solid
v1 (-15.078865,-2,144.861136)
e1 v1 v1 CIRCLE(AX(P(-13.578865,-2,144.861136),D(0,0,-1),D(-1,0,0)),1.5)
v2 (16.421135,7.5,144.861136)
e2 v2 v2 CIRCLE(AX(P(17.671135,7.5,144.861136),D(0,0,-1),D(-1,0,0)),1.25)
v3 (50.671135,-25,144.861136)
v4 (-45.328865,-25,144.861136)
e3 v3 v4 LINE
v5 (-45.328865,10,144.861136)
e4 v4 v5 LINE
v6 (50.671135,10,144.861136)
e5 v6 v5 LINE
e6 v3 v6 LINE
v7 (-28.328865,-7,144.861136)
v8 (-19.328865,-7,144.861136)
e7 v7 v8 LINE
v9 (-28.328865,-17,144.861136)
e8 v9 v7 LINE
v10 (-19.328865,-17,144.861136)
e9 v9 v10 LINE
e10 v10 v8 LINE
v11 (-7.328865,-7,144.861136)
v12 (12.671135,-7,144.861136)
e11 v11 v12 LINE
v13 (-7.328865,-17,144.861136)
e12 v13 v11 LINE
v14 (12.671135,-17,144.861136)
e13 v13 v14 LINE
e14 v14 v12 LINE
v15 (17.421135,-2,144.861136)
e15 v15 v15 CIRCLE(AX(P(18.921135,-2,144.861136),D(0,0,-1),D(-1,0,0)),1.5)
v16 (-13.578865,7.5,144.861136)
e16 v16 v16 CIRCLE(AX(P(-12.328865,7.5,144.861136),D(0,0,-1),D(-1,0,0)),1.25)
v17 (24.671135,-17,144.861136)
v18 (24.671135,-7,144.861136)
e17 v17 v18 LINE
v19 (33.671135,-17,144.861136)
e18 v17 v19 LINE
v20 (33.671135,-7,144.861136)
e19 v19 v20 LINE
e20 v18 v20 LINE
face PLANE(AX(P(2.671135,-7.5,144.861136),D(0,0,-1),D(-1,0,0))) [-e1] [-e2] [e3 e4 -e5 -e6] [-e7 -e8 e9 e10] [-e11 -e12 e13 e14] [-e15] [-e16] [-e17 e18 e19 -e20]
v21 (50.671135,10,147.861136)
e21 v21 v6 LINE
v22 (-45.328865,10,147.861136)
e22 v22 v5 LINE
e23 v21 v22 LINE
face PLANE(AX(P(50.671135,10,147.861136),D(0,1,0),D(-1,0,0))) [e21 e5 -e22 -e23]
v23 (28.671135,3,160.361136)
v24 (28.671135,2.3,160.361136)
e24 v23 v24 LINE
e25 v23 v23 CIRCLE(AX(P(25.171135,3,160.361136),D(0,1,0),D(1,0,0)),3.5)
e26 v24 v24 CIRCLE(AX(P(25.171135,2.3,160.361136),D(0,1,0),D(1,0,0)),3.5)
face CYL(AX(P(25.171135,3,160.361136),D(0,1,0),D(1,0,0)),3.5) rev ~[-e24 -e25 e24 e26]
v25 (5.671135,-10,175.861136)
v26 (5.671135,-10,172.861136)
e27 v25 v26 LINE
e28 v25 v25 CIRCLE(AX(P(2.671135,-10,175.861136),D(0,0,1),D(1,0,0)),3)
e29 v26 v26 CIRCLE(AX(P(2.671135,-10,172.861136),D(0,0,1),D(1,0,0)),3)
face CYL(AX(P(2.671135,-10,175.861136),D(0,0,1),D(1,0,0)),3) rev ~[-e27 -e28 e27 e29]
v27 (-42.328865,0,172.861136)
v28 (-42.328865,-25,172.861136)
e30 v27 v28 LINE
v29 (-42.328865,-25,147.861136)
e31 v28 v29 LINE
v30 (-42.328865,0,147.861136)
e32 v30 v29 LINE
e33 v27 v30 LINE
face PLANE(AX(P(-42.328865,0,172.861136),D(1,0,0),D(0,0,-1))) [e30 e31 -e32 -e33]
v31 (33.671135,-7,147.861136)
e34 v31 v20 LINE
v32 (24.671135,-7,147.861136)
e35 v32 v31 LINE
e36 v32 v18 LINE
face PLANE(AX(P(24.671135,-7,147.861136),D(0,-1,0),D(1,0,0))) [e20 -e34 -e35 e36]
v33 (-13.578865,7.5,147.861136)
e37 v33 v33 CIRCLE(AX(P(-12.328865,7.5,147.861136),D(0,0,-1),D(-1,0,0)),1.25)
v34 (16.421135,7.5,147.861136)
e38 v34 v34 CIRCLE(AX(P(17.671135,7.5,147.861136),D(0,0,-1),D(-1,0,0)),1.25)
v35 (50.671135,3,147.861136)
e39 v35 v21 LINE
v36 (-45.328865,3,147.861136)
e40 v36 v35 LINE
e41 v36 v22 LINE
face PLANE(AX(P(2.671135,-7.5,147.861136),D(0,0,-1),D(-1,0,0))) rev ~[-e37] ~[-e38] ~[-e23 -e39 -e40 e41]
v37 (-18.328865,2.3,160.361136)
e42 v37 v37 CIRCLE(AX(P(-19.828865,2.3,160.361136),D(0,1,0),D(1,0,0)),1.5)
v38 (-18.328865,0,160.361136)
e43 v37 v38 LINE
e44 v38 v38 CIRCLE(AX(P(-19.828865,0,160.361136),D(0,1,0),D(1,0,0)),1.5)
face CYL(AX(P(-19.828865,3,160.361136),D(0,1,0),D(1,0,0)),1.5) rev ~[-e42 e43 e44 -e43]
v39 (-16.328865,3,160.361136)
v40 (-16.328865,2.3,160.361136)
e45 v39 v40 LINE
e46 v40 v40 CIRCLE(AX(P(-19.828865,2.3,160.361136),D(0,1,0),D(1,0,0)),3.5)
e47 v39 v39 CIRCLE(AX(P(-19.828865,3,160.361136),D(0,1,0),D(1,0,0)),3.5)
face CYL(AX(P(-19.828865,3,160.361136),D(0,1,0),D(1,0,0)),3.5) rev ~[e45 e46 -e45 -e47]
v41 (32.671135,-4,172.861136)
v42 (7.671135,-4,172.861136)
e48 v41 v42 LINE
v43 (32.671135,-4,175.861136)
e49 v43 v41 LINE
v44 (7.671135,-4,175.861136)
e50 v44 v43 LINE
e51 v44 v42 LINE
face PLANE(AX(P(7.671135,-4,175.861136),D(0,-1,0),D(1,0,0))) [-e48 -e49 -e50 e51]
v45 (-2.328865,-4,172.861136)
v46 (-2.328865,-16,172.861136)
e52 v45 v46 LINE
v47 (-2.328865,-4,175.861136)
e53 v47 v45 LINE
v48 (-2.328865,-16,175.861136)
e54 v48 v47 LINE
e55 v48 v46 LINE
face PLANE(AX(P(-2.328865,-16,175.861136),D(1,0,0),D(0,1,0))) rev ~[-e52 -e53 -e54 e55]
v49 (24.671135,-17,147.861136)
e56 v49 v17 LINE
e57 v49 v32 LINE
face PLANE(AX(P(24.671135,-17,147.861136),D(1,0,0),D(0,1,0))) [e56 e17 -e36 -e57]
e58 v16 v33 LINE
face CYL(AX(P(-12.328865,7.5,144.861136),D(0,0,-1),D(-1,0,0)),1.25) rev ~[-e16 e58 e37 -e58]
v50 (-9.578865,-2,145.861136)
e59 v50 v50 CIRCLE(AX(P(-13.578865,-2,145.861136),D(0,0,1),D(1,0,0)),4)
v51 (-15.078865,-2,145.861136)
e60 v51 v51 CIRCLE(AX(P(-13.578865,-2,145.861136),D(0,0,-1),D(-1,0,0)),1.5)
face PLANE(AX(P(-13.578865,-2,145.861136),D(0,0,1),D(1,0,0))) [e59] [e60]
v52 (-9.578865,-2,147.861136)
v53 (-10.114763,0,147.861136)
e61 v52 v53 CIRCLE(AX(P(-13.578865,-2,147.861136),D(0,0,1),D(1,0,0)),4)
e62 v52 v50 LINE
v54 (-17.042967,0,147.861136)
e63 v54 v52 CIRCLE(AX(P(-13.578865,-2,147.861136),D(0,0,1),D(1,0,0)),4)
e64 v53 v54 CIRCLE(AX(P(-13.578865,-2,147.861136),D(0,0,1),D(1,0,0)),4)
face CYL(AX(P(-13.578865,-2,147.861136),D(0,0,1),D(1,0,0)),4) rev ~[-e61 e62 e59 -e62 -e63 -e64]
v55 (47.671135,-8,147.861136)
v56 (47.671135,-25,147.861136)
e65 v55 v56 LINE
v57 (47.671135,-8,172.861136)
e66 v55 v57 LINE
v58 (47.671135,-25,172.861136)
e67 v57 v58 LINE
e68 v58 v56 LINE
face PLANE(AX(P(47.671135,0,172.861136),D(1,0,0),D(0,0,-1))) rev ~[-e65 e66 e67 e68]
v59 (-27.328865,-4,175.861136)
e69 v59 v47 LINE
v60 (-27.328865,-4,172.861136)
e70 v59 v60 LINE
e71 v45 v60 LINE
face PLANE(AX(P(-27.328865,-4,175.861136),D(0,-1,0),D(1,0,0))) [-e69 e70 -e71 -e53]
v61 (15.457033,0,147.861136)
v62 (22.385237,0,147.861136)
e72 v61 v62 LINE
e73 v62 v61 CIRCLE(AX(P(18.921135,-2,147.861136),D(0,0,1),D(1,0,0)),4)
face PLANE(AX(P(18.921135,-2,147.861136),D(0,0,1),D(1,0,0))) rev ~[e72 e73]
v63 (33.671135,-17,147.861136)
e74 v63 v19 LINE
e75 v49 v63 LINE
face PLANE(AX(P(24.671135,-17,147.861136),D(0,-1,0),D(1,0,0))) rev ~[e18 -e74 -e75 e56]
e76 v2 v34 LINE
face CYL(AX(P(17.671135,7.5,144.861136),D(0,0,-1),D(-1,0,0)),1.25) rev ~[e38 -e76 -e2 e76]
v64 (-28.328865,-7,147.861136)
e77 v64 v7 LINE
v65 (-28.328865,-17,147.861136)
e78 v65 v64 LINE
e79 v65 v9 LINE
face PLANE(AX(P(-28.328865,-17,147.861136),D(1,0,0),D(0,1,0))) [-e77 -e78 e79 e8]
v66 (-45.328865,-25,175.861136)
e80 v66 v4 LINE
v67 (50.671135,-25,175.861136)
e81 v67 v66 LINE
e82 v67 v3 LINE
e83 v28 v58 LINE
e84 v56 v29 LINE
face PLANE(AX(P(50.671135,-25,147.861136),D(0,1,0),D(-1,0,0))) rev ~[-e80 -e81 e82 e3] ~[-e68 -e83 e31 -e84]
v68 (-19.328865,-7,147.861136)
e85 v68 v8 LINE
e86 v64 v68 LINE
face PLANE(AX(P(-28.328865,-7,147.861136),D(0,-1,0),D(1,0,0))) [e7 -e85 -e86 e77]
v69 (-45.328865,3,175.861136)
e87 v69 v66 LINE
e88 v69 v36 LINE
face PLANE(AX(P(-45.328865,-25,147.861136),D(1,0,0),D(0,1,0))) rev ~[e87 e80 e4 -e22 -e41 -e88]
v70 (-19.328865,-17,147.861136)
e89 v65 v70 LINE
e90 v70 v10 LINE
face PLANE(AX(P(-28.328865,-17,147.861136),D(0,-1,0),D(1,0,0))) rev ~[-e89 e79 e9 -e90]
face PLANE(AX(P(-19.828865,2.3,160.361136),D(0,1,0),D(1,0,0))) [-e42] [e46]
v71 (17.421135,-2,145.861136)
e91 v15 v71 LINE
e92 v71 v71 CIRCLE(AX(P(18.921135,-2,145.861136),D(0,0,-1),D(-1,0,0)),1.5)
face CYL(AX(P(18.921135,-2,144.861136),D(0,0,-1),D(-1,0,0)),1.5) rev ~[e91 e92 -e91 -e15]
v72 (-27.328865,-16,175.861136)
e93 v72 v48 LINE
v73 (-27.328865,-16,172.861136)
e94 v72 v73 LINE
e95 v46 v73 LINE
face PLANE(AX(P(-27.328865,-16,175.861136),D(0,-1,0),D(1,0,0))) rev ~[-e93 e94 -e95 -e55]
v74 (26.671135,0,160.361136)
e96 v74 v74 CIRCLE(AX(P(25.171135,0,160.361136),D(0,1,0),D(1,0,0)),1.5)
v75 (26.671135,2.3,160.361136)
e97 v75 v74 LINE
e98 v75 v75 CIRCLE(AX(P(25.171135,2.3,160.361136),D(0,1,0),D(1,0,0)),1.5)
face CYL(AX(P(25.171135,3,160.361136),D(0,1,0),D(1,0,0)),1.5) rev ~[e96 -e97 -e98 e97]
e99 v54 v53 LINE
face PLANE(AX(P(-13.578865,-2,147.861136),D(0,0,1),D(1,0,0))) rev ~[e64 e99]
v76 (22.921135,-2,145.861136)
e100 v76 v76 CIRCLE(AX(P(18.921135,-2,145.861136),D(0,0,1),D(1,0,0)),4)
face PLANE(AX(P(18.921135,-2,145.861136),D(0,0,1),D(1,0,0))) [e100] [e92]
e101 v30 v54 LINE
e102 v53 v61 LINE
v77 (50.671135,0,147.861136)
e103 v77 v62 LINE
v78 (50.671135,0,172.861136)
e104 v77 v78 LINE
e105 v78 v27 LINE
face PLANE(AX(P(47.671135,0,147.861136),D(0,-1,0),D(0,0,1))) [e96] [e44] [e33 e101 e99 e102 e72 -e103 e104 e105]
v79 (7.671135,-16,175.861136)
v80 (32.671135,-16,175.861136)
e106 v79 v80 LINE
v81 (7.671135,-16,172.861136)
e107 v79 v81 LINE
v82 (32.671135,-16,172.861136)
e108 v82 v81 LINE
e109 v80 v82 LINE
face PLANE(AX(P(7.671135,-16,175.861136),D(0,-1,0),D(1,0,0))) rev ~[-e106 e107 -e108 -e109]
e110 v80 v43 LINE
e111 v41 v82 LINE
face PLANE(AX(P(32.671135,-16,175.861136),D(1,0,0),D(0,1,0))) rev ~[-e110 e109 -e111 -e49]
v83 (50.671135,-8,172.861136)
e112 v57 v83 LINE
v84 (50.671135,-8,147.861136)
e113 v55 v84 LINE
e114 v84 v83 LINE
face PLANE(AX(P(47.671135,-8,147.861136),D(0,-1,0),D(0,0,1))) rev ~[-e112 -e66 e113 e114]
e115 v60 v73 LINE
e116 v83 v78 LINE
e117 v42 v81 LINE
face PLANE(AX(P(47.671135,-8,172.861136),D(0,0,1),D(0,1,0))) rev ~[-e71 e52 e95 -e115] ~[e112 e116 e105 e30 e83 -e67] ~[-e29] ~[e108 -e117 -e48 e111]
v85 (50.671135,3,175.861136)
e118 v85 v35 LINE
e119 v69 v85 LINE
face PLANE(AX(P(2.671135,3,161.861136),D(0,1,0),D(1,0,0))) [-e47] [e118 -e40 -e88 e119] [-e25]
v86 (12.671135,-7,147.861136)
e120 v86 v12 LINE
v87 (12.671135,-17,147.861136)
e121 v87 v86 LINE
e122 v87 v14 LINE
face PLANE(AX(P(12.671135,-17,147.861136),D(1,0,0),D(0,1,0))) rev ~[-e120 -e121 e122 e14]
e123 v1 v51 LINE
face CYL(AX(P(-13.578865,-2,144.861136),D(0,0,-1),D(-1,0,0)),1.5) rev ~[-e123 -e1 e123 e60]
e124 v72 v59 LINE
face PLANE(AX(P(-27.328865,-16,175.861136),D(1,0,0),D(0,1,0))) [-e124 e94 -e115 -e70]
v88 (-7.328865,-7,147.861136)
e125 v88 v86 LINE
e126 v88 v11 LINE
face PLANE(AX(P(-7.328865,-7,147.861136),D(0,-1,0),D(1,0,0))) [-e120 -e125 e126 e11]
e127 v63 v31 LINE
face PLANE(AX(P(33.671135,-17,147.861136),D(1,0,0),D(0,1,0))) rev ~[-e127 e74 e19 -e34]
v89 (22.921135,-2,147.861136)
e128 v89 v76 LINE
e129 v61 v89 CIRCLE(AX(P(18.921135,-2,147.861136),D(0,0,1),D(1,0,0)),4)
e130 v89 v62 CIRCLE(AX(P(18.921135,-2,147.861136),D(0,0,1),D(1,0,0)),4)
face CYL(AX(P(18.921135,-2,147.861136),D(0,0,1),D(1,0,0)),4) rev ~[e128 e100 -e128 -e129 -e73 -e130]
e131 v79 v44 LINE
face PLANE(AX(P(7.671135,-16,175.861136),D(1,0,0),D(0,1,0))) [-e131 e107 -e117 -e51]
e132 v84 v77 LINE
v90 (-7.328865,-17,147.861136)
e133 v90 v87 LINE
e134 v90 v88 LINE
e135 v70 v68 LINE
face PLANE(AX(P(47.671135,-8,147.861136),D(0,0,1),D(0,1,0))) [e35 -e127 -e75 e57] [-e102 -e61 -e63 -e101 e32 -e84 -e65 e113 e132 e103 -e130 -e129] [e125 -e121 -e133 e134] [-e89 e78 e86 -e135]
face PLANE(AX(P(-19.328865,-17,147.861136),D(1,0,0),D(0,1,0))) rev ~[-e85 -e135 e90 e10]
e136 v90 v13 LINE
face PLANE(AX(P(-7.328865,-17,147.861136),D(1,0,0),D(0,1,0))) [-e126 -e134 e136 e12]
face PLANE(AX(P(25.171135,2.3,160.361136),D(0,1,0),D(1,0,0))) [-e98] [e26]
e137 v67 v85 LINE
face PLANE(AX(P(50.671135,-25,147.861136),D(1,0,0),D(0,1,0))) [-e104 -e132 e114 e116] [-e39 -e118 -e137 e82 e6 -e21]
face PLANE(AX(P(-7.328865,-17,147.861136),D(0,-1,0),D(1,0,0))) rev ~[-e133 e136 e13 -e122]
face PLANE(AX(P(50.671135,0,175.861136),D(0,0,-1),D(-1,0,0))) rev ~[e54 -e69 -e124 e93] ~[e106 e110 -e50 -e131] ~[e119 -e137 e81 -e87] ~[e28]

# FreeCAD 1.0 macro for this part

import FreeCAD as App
import Part
import Sketcher
from FreeCAD import Vector
Q = App.Units.Quantity

doc = App.newDocument("Part")
params = doc.addObject("Spreadsheet::Sheet", "Params")
for row, (alias, value) in enumerate([
    ("sketch1_width", "96 mm"),
    ("sketch1_height", "28 mm"),
    ("pad1_length", "3 mm"),
    ("sketch2_width", "96 mm"),
    ("sketch2_width2", "3 mm"),
    ("sketch2_height", "28 mm"),
    ("sketch2_height2", "25 mm"),
    ("pad2_length", "25 mm"),
    ("sketch3_width", "96 mm"),
    ("sketch3_height", "35 mm"),
    ("pad3_length", "3 mm"),
    ("sketch4_diameter", "3 mm"),
    ("sketch5_diameter", "3 mm"),
    ("sketch6_diameter", "7 mm"),
    ("pocket3_length", "0.7 mm"),
    ("sketch7_diameter", "3 mm"),
    ("sketch8_diameter", "3 mm"),
    ("sketch9_diameter", "2.5 mm"),
    ("sketch10_diameter", "2.5 mm"),
    ("sketch11_diameter", "8 mm"),
    ("pocket8_length", "2 mm"),
    ("sketch12_diameter", "6 mm"),
    ("sketch13_width", "25 mm"),
    ("sketch13_height", "12 mm"),
    ("sketch14_width", "25 mm"),
    ("sketch14_height", "12 mm"),
    ("sketch15_width", "20 mm"),
    ("sketch15_height", "10 mm"),
    ("sketch16_width", "9 mm"),
    ("sketch16_height", "10 mm"),
    ("sketch17_width", "9 mm"),
    ("sketch17_height", "10 mm"),
    ("sketch18_width", "8 mm"),
    ("sketch18_height", "25 mm"),
], start=1):
    params.set(f"A{row}", alias)
    params.set(f"B{row}", "=" + value)
    params.setAlias(f"B{row}", alias)

body = doc.addObject("PartDesign::Body", "Body")

# Sketch on XZ plane
sketch1 = doc.addObject("Sketcher::SketchObject", "Sketch")
body.addObject(sketch1)
sketch1.AttachmentSupport = (doc.XZ_Plane, [""])
sketch1.MapMode = "FlatFace"
sketch1.addGeometry([
    Part.LineSegment(Vector(-45.328865, 147.861136, 0), Vector(-45.328865, 175.861136, 0)),
    Part.LineSegment(Vector(-45.328865, 175.861136, 0), Vector(50.671135, 175.861136, 0)),
    Part.LineSegment(Vector(50.671135, 175.861136, 0), Vector(50.671135, 147.861136, 0)),
    Part.LineSegment(Vector(50.671135, 147.861136, 0), Vector(-45.328865, 147.861136, 0)),
], False)
sketch1.addConstraint([
    Sketcher.Constraint("Coincident", 0, 2, 1, 1),
    Sketcher.Constraint("Coincident", 1, 2, 2, 1),
    Sketcher.Constraint("Coincident", 2, 2, 3, 1),
    Sketcher.Constraint("Coincident", 3, 2, 0, 1),
    Sketcher.Constraint("Vertical", 0),
    Sketcher.Constraint("Horizontal", 1),
    Sketcher.Constraint("Vertical", 2),
    Sketcher.Constraint("Horizontal", 3),
    Sketcher.Constraint("DistanceX", 1, 1, 1, 2, Q("96 mm")),
    Sketcher.Constraint("DistanceY", 0, 1, 0, 2, Q("28 mm")),
    Sketcher.Constraint("DistanceX", 0, 2, -1, 1, Q("45.328865 mm")),
    Sketcher.Constraint("DistanceY", -1, 1, 0, 2, Q("175.861136 mm")),
])
sketch1.setExpression("Constraints[8]", "Params.sketch1_width")
sketch1.setExpression("Constraints[9]", "Params.sketch1_height")
pad1 = doc.addObject("PartDesign::Pad", "Pad")
body.addObject(pad1)
pad1.Profile = sketch1
pad1.setExpression("Length", "Params.pad1_length")
pad1.Reversed = True

# Sketch on XZ plane
sketch2 = doc.addObject("Sketcher::SketchObject", "Sketch001")
body.addObject(sketch2)
sketch2.AttachmentSupport = (doc.XZ_Plane, [""])
sketch2.MapMode = "FlatFace"
sketch2.addGeometry([
    Part.LineSegment(Vector(50.671135, 175.861136, 0), Vector(-45.328865, 175.861136, 0)),  # 0
    Part.LineSegment(Vector(-45.328865, 175.861136, 0), Vector(-45.328865, 147.861136, 0)),  # 1
    Part.LineSegment(Vector(-45.328865, 147.861136, 0), Vector(-42.328865, 147.861136, 0)),  # 2
    Part.LineSegment(Vector(-42.328865, 147.861136, 0), Vector(-42.328865, 172.861136, 0)),  # 3
    Part.LineSegment(Vector(-42.328865, 172.861136, 0), Vector(47.671135, 172.861136, 0)),  # 4
    Part.LineSegment(Vector(47.671135, 172.861136, 0), Vector(47.671135, 147.861136, 0)),  # 5
    Part.LineSegment(Vector(47.671135, 147.861136, 0), Vector(50.671135, 147.861136, 0)),  # 6
    Part.LineSegment(Vector(50.671135, 147.861136, 0), Vector(50.671135, 175.861136, 0)),  # 7
], False)
sketch2.addConstraint([
    Sketcher.Constraint("Coincident", 0, 2, 1, 1),
    Sketcher.Constraint("Coincident", 1, 2, 2, 1),
    Sketcher.Constraint("Coincident", 2, 2, 3, 1),
    Sketcher.Constraint("Coincident", 3, 2, 4, 1),
    Sketcher.Constraint("Coincident", 4, 2, 5, 1),
    Sketcher.Constraint("Coincident", 5, 2, 6, 1),
    Sketcher.Constraint("Coincident", 6, 2, 7, 1),
    Sketcher.Constraint("Coincident", 7, 2, 0, 1),
    Sketcher.Constraint("Horizontal", 0),
    Sketcher.Constraint("Vertical", 1),
    Sketcher.Constraint("Horizontal", 2),
    Sketcher.Constraint("Vertical", 3),
    Sketcher.Constraint("Horizontal", 4),
    Sketcher.Constraint("Vertical", 5),
    Sketcher.Constraint("Horizontal", 6),
    Sketcher.Constraint("Vertical", 7),
    Sketcher.Constraint("Horizontal", 2, 2, 5, 2),
    Sketcher.Constraint("Equal", 2, 6),
    Sketcher.Constraint("DistanceX", 0, 2, 0, 1, Q("96 mm")),
    Sketcher.Constraint("DistanceX", 2, 1, 2, 2, Q("3 mm")),
    Sketcher.Constraint("DistanceY", 1, 2, 1, 1, Q("28 mm")),
    Sketcher.Constraint("DistanceY", 3, 1, 3, 2, Q("25 mm")),
    Sketcher.Constraint("DistanceX", 0, 2, -1, 1, Q("45.328865 mm")),
    Sketcher.Constraint("DistanceY", -1, 1, 0, 2, Q("175.861136 mm")),
])
sketch2.setExpression("Constraints[18]", "Params.sketch2_width")
sketch2.setExpression("Constraints[19]", "Params.sketch2_width2")
sketch2.setExpression("Constraints[20]", "Params.sketch2_height")
sketch2.setExpression("Constraints[21]", "Params.sketch2_height2")
pad2 = doc.addObject("PartDesign::Pad", "Pad001")
body.addObject(pad2)
pad2.Profile = sketch2
pad2.setExpression("Length", "Params.pad2_length")

# Sketch on XY plane
sketch3 = doc.addObject("Sketcher::SketchObject", "Sketch002")
body.addObject(sketch3)
sketch3.AttachmentSupport = (doc.XY_Plane, [""])
sketch3.MapMode = "FlatFace"
sketch3.AttachmentOffset = App.Placement(Vector(0, 0, 147.861136), App.Rotation())
sketch3.addGeometry([
    Part.LineSegment(Vector(50.671135, 10, 0), Vector(50.671135, -25, 0)),
    Part.LineSegment(Vector(50.671135, -25, 0), Vector(-45.328865, -25, 0)),
    Part.LineSegment(Vector(-45.328865, -25, 0), Vector(-45.328865, 10, 0)),
    Part.LineSegment(Vector(-45.328865, 10, 0), Vector(50.671135, 10, 0)),
], False)
sketch3.addConstraint([
    Sketcher.Constraint("Coincident", 0, 2, 1, 1),
    Sketcher.Constraint("Coincident", 1, 2, 2, 1),
    Sketcher.Constraint("Coincident", 2, 2, 3, 1),
    Sketcher.Constraint("Coincident", 3, 2, 0, 1),
    Sketcher.Constraint("Vertical", 0),
    Sketcher.Constraint("Horizontal", 1),
    Sketcher.Constraint("Vertical", 2),
    Sketcher.Constraint("Horizontal", 3),
    Sketcher.Constraint("DistanceX", 1, 2, 1, 1, Q("96 mm")),
    Sketcher.Constraint("DistanceY", 0, 2, 0, 1, Q("35 mm")),
    Sketcher.Constraint("DistanceY", 0, 2, -1, 1, Q("25 mm")),
    Sketcher.Constraint("DistanceX", -1, 1, 0, 2, Q("50.671135 mm")),
])
sketch3.setExpression("Constraints[8]", "Params.sketch3_width")
sketch3.setExpression("Constraints[9]", "Params.sketch3_height")
pad3 = doc.addObject("PartDesign::Pad", "Pad002")
body.addObject(pad3)
pad3.Profile = sketch3
pad3.setExpression("Length", "Params.pad3_length")
pad3.Reversed = True

# Sketch on XZ plane
sketch4 = doc.addObject("Sketcher::SketchObject", "Sketch003")
body.addObject(sketch4)
sketch4.AttachmentSupport = (doc.XZ_Plane, [""])
sketch4.MapMode = "FlatFace"
sketch4.AttachmentOffset = App.Placement(Vector(0, 0, -3), App.Rotation())
sketch4.addGeometry(Part.Circle(Vector(-19.828865, 160.361136, 0), Vector(0, 0, 1), 1.5), False)
sketch4.addConstraint([
    Sketcher.Constraint("Diameter", 0, Q("3 mm")),
    Sketcher.Constraint("DistanceX", 0, 3, -1, 1, Q("19.828865 mm")),
    Sketcher.Constraint("DistanceY", -1, 1, 0, 3, Q("160.361136 mm")),
])
sketch4.setExpression("Constraints[0]", "Params.sketch4_diameter")
pocket1 = doc.addObject("PartDesign::Pocket", "Pocket")
body.addObject(pocket1)
pocket1.Profile = sketch4
pocket1.Type = "UpToFirst"
pocket1.Reversed = True

# Sketch on XZ plane
sketch5 = doc.addObject("Sketcher::SketchObject", "Sketch004")
body.addObject(sketch5)
sketch5.AttachmentSupport = (doc.XZ_Plane, [""])
sketch5.MapMode = "FlatFace"
sketch5.AttachmentOffset = App.Placement(Vector(0, 0, -3), App.Rotation())
sketch5.addGeometry(Part.Circle(Vector(25.171135, 160.361136, 0), Vector(0, 0, 1), 1.5), False)
sketch5.addConstraint([
    Sketcher.Constraint("Diameter", 0, Q("3 mm")),
    Sketcher.Constraint("DistanceX", -1, 1, 0, 3, Q("25.171135 mm")),
    Sketcher.Constraint("DistanceY", -1, 1, 0, 3, Q("160.361136 mm")),
])
sketch5.setExpression("Constraints[0]", "Params.sketch5_diameter")
pocket2 = doc.addObject("PartDesign::Pocket", "Pocket001")
body.addObject(pocket2)
pocket2.Profile = sketch5
pocket2.Type = "UpToFirst"
pocket2.Reversed = True

# Sketch on XZ plane
sketch6 = doc.addObject("Sketcher::SketchObject", "Sketch005")
body.addObject(sketch6)
sketch6.AttachmentSupport = (doc.XZ_Plane, [""])
sketch6.MapMode = "FlatFace"
sketch6.AttachmentOffset = App.Placement(Vector(0, 0, -3), App.Rotation())
sketch6.addGeometry([
    Part.Circle(Vector(-19.828865, 160.361136, 0), Vector(0, 0, 1), 3.5),
    Part.Circle(Vector(25.171135, 160.361136, 0), Vector(0, 0, 1), 3.5),
], False)
sketch6.addConstraint([
    Sketcher.Constraint("Equal", 0, 1),
    Sketcher.Constraint("Horizontal", 0, 3, 1, 3),
    Sketcher.Constraint("Diameter", 0, Q("7 mm")),
    Sketcher.Constraint("DistanceX", 0, 3, 1, 3, Q("45 mm")),
    Sketcher.Constraint("DistanceX", 0, 3, -1, 1, Q("19.828865 mm")),
    Sketcher.Constraint("DistanceY", -1, 1, 0, 3, Q("160.361136 mm")),
])
sketch6.setExpression("Constraints[2]", "Params.sketch6_diameter")
pocket3 = doc.addObject("PartDesign::Pocket", "Pocket002")
body.addObject(pocket3)
pocket3.Profile = sketch6
pocket3.setExpression("Length", "Params.pocket3_length")
pocket3.Reversed = True

# Sketch on XY plane
sketch7 = doc.addObject("Sketcher::SketchObject", "Sketch006")
body.addObject(sketch7)
sketch7.AttachmentSupport = (doc.XY_Plane, [""])
sketch7.MapMode = "FlatFace"
sketch7.AttachmentOffset = App.Placement(Vector(0, 0, 144.861136), App.Rotation())
sketch7.addGeometry(Part.Circle(Vector(18.921135, -2, 0), Vector(0, 0, 1), 1.5), False)
sketch7.addConstraint([
    Sketcher.Constraint("Diameter", 0, Q("3 mm")),
    Sketcher.Constraint("DistanceY", 0, 3, -1, 1, Q("2 mm")),
    Sketcher.Constraint("DistanceX", -1, 1, 0, 3, Q("18.921135 mm")),
])
sketch7.setExpression("Constraints[0]", "Params.sketch7_diameter")
pocket4 = doc.addObject("PartDesign::Pocket", "Pocket003")
body.addObject(pocket4)
pocket4.Profile = sketch7
pocket4.Type = "UpToFirst"
pocket4.Reversed = True

# Sketch on XY plane
sketch8 = doc.addObject("Sketcher::SketchObject", "Sketch007")
body.addObject(sketch8)
sketch8.AttachmentSupport = (doc.XY_Plane, [""])
sketch8.MapMode = "FlatFace"
sketch8.AttachmentOffset = App.Placement(Vector(0, 0, 144.861136), App.Rotation())
sketch8.addGeometry(Part.Circle(Vector(-13.578865, -2, 0), Vector(0, 0, 1), 1.5), False)
sketch8.addConstraint([
    Sketcher.Constraint("Diameter", 0, Q("3 mm")),
    Sketcher.Constraint("DistanceY", 0, 3, -1, 1, Q("2 mm")),
    Sketcher.Constraint("DistanceX", 0, 3, -1, 1, Q("13.578865 mm")),
])
sketch8.setExpression("Constraints[0]", "Params.sketch8_diameter")
pocket5 = doc.addObject("PartDesign::Pocket", "Pocket004")
body.addObject(pocket5)
pocket5.Profile = sketch8
pocket5.Type = "UpToFirst"
pocket5.Reversed = True

# Sketch on XY plane
sketch9 = doc.addObject("Sketcher::SketchObject", "Sketch008")
body.addObject(sketch9)
sketch9.AttachmentSupport = (doc.XY_Plane, [""])
sketch9.MapMode = "FlatFace"
sketch9.AttachmentOffset = App.Placement(Vector(0, 0, 144.861136), App.Rotation())
sketch9.addGeometry(Part.Circle(Vector(-12.328865, 7.5, 0), Vector(0, 0, 1), 1.25), False)
sketch9.addConstraint([
    Sketcher.Constraint("Diameter", 0, Q("2.5 mm")),
    Sketcher.Constraint("DistanceY", -1, 1, 0, 3, Q("7.5 mm")),
    Sketcher.Constraint("DistanceX", 0, 3, -1, 1, Q("12.328865 mm")),
])
sketch9.setExpression("Constraints[0]", "Params.sketch9_diameter")
pocket6 = doc.addObject("PartDesign::Pocket", "Pocket005")
body.addObject(pocket6)
pocket6.Profile = sketch9
pocket6.Type = "UpToFirst"
pocket6.Reversed = True

# Sketch on XY plane
sketch10 = doc.addObject("Sketcher::SketchObject", "Sketch009")
body.addObject(sketch10)
sketch10.AttachmentSupport = (doc.XY_Plane, [""])
sketch10.MapMode = "FlatFace"
sketch10.AttachmentOffset = App.Placement(Vector(0, 0, 144.861136), App.Rotation())
sketch10.addGeometry(Part.Circle(Vector(17.671135, 7.5, 0), Vector(0, 0, 1), 1.25), False)
sketch10.addConstraint([
    Sketcher.Constraint("Diameter", 0, Q("2.5 mm")),
    Sketcher.Constraint("DistanceY", -1, 1, 0, 3, Q("7.5 mm")),
    Sketcher.Constraint("DistanceX", -1, 1, 0, 3, Q("17.671135 mm")),
])
sketch10.setExpression("Constraints[0]", "Params.sketch10_diameter")
pocket7 = doc.addObject("PartDesign::Pocket", "Pocket006")
body.addObject(pocket7)
pocket7.Profile = sketch10
pocket7.Type = "UpToFirst"
pocket7.Reversed = True

# Sketch on XY plane
sketch11 = doc.addObject("Sketcher::SketchObject", "Sketch010")
body.addObject(sketch11)
sketch11.AttachmentSupport = (doc.XY_Plane, [""])
sketch11.MapMode = "FlatFace"
sketch11.AttachmentOffset = App.Placement(Vector(0, 0, 147.861136), App.Rotation())
sketch11.addGeometry([
    Part.Circle(Vector(18.921135, -2, 0), Vector(0, 0, 1), 4),
    Part.Circle(Vector(-13.578865, -2, 0), Vector(0, 0, 1), 4),
], False)
sketch11.addConstraint([
    Sketcher.Constraint("Equal", 0, 1),
    Sketcher.Constraint("Horizontal", 0, 3, 1, 3),
    Sketcher.Constraint("Diameter", 0, Q("8 mm")),
    Sketcher.Constraint("DistanceY", 0, 3, -1, 1, Q("2 mm")),
    Sketcher.Constraint("DistanceX", 1, 3, 0, 3, Q("32.5 mm")),
    Sketcher.Constraint("DistanceX", -1, 1, 0, 3, Q("18.921135 mm")),
])
sketch11.setExpression("Constraints[2]", "Params.sketch11_diameter")
pocket8 = doc.addObject("PartDesign::Pocket", "Pocket007")
body.addObject(pocket8)
pocket8.Profile = sketch11
pocket8.setExpression("Length", "Params.pocket8_length")

# Sketch on XY plane
sketch12 = doc.addObject("Sketcher::SketchObject", "Sketch011")
body.addObject(sketch12)
sketch12.AttachmentSupport = (doc.XY_Plane, [""])
sketch12.MapMode = "FlatFace"
sketch12.AttachmentOffset = App.Placement(Vector(0, 0, 175.861136), App.Rotation())
sketch12.addGeometry(Part.Circle(Vector(2.671135, -10, 0), Vector(0, 0, 1), 3), False)
sketch12.addConstraint([
    Sketcher.Constraint("Diameter", 0, Q("6 mm")),
    Sketcher.Constraint("DistanceY", 0, 3, -1, 1, Q("10 mm")),
    Sketcher.Constraint("DistanceX", -1, 1, 0, 3, Q("2.671135 mm")),
])
sketch12.setExpression("Constraints[0]", "Params.sketch12_diameter")
pocket9 = doc.addObject("PartDesign::Pocket", "Pocket008")
body.addObject(pocket9)
pocket9.Profile = sketch12
pocket9.Type = "UpToFirst"

# Sketch on XY plane
sketch13 = doc.addObject("Sketcher::SketchObject", "Sketch012")
body.addObject(sketch13)
sketch13.AttachmentSupport = (doc.XY_Plane, [""])
sketch13.MapMode = "FlatFace"
sketch13.AttachmentOffset = App.Placement(Vector(0, 0, 175.861136), App.Rotation())
sketch13.addGeometry([
    Part.LineSegment(Vector(-27.328865, -4, 0), Vector(-27.328865, -16, 0)),
    Part.LineSegment(Vector(-27.328865, -16, 0), Vector(-2.328865, -16, 0)),
    Part.LineSegment(Vector(-2.328865, -16, 0), Vector(-2.328865, -4, 0)),
    Part.LineSegment(Vector(-2.328865, -4, 0), Vector(-27.328865, -4, 0)),
], False)
sketch13.addConstraint([
    Sketcher.Constraint("Coincident", 0, 2, 1, 1),
    Sketcher.Constraint("Coincident", 1, 2, 2, 1),
    Sketcher.Constraint("Coincident", 2, 2, 3, 1),
    Sketcher.Constraint("Coincident", 3, 2, 0, 1),
    Sketcher.Constraint("Vertical", 0),
    Sketcher.Constraint("Horizontal", 1),
    Sketcher.Constraint("Vertical", 2),
    Sketcher.Constraint("Horizontal", 3),
    Sketcher.Constraint("DistanceX", 1, 1, 1, 2, Q("25 mm")),
    Sketcher.Constraint("DistanceY", 0, 2, 0, 1, Q("12 mm")),
    Sketcher.Constraint("DistanceY", 0, 2, -1, 1, Q("16 mm")),
    Sketcher.Constraint("DistanceX", 0, 2, -1, 1, Q("27.328865 mm")),
])
sketch13.setExpression("Constraints[8]", "Params.sketch13_width")
sketch13.setExpression("Constraints[9]", "Params.sketch13_height")
pocket10 = doc.addObject("PartDesign::Pocket", "Pocket009")
body.addObject(pocket10)
pocket10.Profile = sketch13
pocket10.Type = "UpToFirst"

# Sketch on XY plane
sketch14 = doc.addObject("Sketcher::SketchObject", "Sketch013")
body.addObject(sketch14)
sketch14.AttachmentSupport = (doc.XY_Plane, [""])
sketch14.MapMode = "FlatFace"
sketch14.AttachmentOffset = App.Placement(Vector(0, 0, 175.861136), App.Rotation())
sketch14.addGeometry([
    Part.LineSegment(Vector(7.671135, -4, 0), Vector(7.671135, -16, 0)),
    Part.LineSegment(Vector(7.671135, -16, 0), Vector(32.671135, -16, 0)),
    Part.LineSegment(Vector(32.671135, -16, 0), Vector(32.671135, -4, 0)),
    Part.LineSegment(Vector(32.671135, -4, 0), Vector(7.671135, -4, 0)),
], False)
sketch14.addConstraint([
    Sketcher.Constraint("Coincident", 0, 2, 1, 1),
    Sketcher.Constraint("Coincident", 1, 2, 2, 1),
    Sketcher.Constraint("Coincident", 2, 2, 3, 1),
    Sketcher.Constraint("Coincident", 3, 2, 0, 1),
    Sketcher.Constraint("Vertical", 0),
    Sketcher.Constraint("Horizontal", 1),
    Sketcher.Constraint("Vertical", 2),
    Sketcher.Constraint("Horizontal", 3),
    Sketcher.Constraint("DistanceX", 1, 1, 1, 2, Q("25 mm")),
    Sketcher.Constraint("DistanceY", 0, 2, 0, 1, Q("12 mm")),
    Sketcher.Constraint("DistanceY", 0, 2, -1, 1, Q("16 mm")),
    Sketcher.Constraint("DistanceX", -1, 1, 0, 2, Q("7.671135 mm")),
])
sketch14.setExpression("Constraints[8]", "Params.sketch14_width")
sketch14.setExpression("Constraints[9]", "Params.sketch14_height")
pocket11 = doc.addObject("PartDesign::Pocket", "Pocket010")
body.addObject(pocket11)
pocket11.Profile = sketch14
pocket11.Type = "UpToFirst"

# Sketch on XY plane
sketch15 = doc.addObject("Sketcher::SketchObject", "Sketch014")
body.addObject(sketch15)
sketch15.AttachmentSupport = (doc.XY_Plane, [""])
sketch15.MapMode = "FlatFace"
sketch15.AttachmentOffset = App.Placement(Vector(0, 0, 147.861136), App.Rotation())
sketch15.addGeometry([
    Part.LineSegment(Vector(-7.328865, -7, 0), Vector(-7.328865, -17, 0)),
    Part.LineSegment(Vector(-7.328865, -17, 0), Vector(12.671135, -17, 0)),
    Part.LineSegment(Vector(12.671135, -17, 0), Vector(12.671135, -7, 0)),
    Part.LineSegment(Vector(12.671135, -7, 0), Vector(-7.328865, -7, 0)),
], False)
sketch15.addConstraint([
    Sketcher.Constraint("Coincident", 0, 2, 1, 1),
    Sketcher.Constraint("Coincident", 1, 2, 2, 1),
    Sketcher.Constraint("Coincident", 2, 2, 3, 1),
    Sketcher.Constraint("Coincident", 3, 2, 0, 1),
    Sketcher.Constraint("Vertical", 0),
    Sketcher.Constraint("Horizontal", 1),
    Sketcher.Constraint("Vertical", 2),
    Sketcher.Constraint("Horizontal", 3),
    Sketcher.Constraint("DistanceX", 1, 1, 1, 2, Q("20 mm")),
    Sketcher.Constraint("DistanceY", 0, 2, 0, 1, Q("10 mm")),
    Sketcher.Constraint("DistanceY", 0, 2, -1, 1, Q("17 mm")),
    Sketcher.Constraint("DistanceX", 0, 2, -1, 1, Q("7.328865 mm")),
])
sketch15.setExpression("Constraints[8]", "Params.sketch15_width")
sketch15.setExpression("Constraints[9]", "Params.sketch15_height")
pocket12 = doc.addObject("PartDesign::Pocket", "Pocket011")
body.addObject(pocket12)
pocket12.Profile = sketch15
pocket12.Type = "UpToFirst"

# Sketch on XY plane
sketch16 = doc.addObject("Sketcher::SketchObject", "Sketch015")
body.addObject(sketch16)
sketch16.AttachmentSupport = (doc.XY_Plane, [""])
sketch16.MapMode = "FlatFace"
sketch16.AttachmentOffset = App.Placement(Vector(0, 0, 147.861136), App.Rotation())
sketch16.addGeometry([
    Part.LineSegment(Vector(-28.328865, -7, 0), Vector(-28.328865, -17, 0)),
    Part.LineSegment(Vector(-28.328865, -17, 0), Vector(-19.328865, -17, 0)),
    Part.LineSegment(Vector(-19.328865, -17, 0), Vector(-19.328865, -7, 0)),
    Part.LineSegment(Vector(-19.328865, -7, 0), Vector(-28.328865, -7, 0)),
], False)
sketch16.addConstraint([
    Sketcher.Constraint("Coincident", 0, 2, 1, 1),
    Sketcher.Constraint("Coincident", 1, 2, 2, 1),
    Sketcher.Constraint("Coincident", 2, 2, 3, 1),
    Sketcher.Constraint("Coincident", 3, 2, 0, 1),
    Sketcher.Constraint("Vertical", 0),
    Sketcher.Constraint("Horizontal", 1),
    Sketcher.Constraint("Vertical", 2),
    Sketcher.Constraint("Horizontal", 3),
    Sketcher.Constraint("DistanceX", 1, 1, 1, 2, Q("9 mm")),
    Sketcher.Constraint("DistanceY", 0, 2, 0, 1, Q("10 mm")),
    Sketcher.Constraint("DistanceY", 0, 2, -1, 1, Q("17 mm")),
    Sketcher.Constraint("DistanceX", 0, 2, -1, 1, Q("28.328865 mm")),
])
sketch16.setExpression("Constraints[8]", "Params.sketch16_width")
sketch16.setExpression("Constraints[9]", "Params.sketch16_height")
pocket13 = doc.addObject("PartDesign::Pocket", "Pocket012")
body.addObject(pocket13)
pocket13.Profile = sketch16
pocket13.Type = "UpToFirst"

# Sketch on XY plane
sketch17 = doc.addObject("Sketcher::SketchObject", "Sketch016")
body.addObject(sketch17)
sketch17.AttachmentSupport = (doc.XY_Plane, [""])
sketch17.MapMode = "FlatFace"
sketch17.AttachmentOffset = App.Placement(Vector(0, 0, 147.861136), App.Rotation())
sketch17.addGeometry([
    Part.LineSegment(Vector(24.671135, -7, 0), Vector(24.671135, -17, 0)),
    Part.LineSegment(Vector(24.671135, -17, 0), Vector(33.671135, -17, 0)),
    Part.LineSegment(Vector(33.671135, -17, 0), Vector(33.671135, -7, 0)),
    Part.LineSegment(Vector(33.671135, -7, 0), Vector(24.671135, -7, 0)),
], False)
sketch17.addConstraint([
    Sketcher.Constraint("Coincident", 0, 2, 1, 1),
    Sketcher.Constraint("Coincident", 1, 2, 2, 1),
    Sketcher.Constraint("Coincident", 2, 2, 3, 1),
    Sketcher.Constraint("Coincident", 3, 2, 0, 1),
    Sketcher.Constraint("Vertical", 0),
    Sketcher.Constraint("Horizontal", 1),
    Sketcher.Constraint("Vertical", 2),
    Sketcher.Constraint("Horizontal", 3),
    Sketcher.Constraint("DistanceX", 1, 1, 1, 2, Q("9 mm")),
    Sketcher.Constraint("DistanceY", 0, 2, 0, 1, Q("10 mm")),
    Sketcher.Constraint("DistanceY", 0, 2, -1, 1, Q("17 mm")),
    Sketcher.Constraint("DistanceX", -1, 1, 0, 2, Q("24.671135 mm")),
])
sketch17.setExpression("Constraints[8]", "Params.sketch17_width")
sketch17.setExpression("Constraints[9]", "Params.sketch17_height")
pocket14 = doc.addObject("PartDesign::Pocket", "Pocket013")
body.addObject(pocket14)
pocket14.Profile = sketch17
pocket14.Type = "UpToFirst"

# Sketch on YZ plane
sketch18 = doc.addObject("Sketcher::SketchObject", "Sketch017")
body.addObject(sketch18)
sketch18.AttachmentSupport = (doc.YZ_Plane, [""])
sketch18.MapMode = "FlatFace"
sketch18.AttachmentOffset = App.Placement(Vector(0, 0, 47.671135), App.Rotation())
sketch18.addGeometry([
    Part.LineSegment(Vector(0, 147.861136, 0), Vector(-8, 147.861136, 0)),
    Part.LineSegment(Vector(-8, 147.861136, 0), Vector(-8, 172.861136, 0)),
    Part.LineSegment(Vector(-8, 172.861136, 0), Vector(0, 172.861136, 0)),
    Part.LineSegment(Vector(0, 172.861136, 0), Vector(0, 147.861136, 0)),
], False)
sketch18.addConstraint([
    Sketcher.Constraint("Coincident", 0, 2, 1, 1),
    Sketcher.Constraint("Coincident", 1, 2, 2, 1),
    Sketcher.Constraint("Coincident", 2, 2, 3, 1),
    Sketcher.Constraint("Coincident", 3, 2, 0, 1),
    Sketcher.Constraint("Horizontal", 0),
    Sketcher.Constraint("Vertical", 1),
    Sketcher.Constraint("Horizontal", 2),
    Sketcher.Constraint("Vertical", 3),
    Sketcher.Constraint("PointOnObject", 2, 2, -2),
    Sketcher.Constraint("DistanceX", 0, 2, 0, 1, Q("8 mm")),
    Sketcher.Constraint("DistanceY", 1, 1, 1, 2, Q("25 mm")),
    Sketcher.Constraint("DistanceY", -1, 1, 0, 2, Q("147.861136 mm")),
])
sketch18.setExpression("Constraints[9]", "Params.sketch18_width")
sketch18.setExpression("Constraints[10]", "Params.sketch18_height")
pocket15 = doc.addObject("PartDesign::Pocket", "Pocket014")
body.addObject(pocket15)
pocket15.Profile = sketch18
pocket15.Type = "UpToFirst"
pocket15.Reversed = True

doc.recompute()
